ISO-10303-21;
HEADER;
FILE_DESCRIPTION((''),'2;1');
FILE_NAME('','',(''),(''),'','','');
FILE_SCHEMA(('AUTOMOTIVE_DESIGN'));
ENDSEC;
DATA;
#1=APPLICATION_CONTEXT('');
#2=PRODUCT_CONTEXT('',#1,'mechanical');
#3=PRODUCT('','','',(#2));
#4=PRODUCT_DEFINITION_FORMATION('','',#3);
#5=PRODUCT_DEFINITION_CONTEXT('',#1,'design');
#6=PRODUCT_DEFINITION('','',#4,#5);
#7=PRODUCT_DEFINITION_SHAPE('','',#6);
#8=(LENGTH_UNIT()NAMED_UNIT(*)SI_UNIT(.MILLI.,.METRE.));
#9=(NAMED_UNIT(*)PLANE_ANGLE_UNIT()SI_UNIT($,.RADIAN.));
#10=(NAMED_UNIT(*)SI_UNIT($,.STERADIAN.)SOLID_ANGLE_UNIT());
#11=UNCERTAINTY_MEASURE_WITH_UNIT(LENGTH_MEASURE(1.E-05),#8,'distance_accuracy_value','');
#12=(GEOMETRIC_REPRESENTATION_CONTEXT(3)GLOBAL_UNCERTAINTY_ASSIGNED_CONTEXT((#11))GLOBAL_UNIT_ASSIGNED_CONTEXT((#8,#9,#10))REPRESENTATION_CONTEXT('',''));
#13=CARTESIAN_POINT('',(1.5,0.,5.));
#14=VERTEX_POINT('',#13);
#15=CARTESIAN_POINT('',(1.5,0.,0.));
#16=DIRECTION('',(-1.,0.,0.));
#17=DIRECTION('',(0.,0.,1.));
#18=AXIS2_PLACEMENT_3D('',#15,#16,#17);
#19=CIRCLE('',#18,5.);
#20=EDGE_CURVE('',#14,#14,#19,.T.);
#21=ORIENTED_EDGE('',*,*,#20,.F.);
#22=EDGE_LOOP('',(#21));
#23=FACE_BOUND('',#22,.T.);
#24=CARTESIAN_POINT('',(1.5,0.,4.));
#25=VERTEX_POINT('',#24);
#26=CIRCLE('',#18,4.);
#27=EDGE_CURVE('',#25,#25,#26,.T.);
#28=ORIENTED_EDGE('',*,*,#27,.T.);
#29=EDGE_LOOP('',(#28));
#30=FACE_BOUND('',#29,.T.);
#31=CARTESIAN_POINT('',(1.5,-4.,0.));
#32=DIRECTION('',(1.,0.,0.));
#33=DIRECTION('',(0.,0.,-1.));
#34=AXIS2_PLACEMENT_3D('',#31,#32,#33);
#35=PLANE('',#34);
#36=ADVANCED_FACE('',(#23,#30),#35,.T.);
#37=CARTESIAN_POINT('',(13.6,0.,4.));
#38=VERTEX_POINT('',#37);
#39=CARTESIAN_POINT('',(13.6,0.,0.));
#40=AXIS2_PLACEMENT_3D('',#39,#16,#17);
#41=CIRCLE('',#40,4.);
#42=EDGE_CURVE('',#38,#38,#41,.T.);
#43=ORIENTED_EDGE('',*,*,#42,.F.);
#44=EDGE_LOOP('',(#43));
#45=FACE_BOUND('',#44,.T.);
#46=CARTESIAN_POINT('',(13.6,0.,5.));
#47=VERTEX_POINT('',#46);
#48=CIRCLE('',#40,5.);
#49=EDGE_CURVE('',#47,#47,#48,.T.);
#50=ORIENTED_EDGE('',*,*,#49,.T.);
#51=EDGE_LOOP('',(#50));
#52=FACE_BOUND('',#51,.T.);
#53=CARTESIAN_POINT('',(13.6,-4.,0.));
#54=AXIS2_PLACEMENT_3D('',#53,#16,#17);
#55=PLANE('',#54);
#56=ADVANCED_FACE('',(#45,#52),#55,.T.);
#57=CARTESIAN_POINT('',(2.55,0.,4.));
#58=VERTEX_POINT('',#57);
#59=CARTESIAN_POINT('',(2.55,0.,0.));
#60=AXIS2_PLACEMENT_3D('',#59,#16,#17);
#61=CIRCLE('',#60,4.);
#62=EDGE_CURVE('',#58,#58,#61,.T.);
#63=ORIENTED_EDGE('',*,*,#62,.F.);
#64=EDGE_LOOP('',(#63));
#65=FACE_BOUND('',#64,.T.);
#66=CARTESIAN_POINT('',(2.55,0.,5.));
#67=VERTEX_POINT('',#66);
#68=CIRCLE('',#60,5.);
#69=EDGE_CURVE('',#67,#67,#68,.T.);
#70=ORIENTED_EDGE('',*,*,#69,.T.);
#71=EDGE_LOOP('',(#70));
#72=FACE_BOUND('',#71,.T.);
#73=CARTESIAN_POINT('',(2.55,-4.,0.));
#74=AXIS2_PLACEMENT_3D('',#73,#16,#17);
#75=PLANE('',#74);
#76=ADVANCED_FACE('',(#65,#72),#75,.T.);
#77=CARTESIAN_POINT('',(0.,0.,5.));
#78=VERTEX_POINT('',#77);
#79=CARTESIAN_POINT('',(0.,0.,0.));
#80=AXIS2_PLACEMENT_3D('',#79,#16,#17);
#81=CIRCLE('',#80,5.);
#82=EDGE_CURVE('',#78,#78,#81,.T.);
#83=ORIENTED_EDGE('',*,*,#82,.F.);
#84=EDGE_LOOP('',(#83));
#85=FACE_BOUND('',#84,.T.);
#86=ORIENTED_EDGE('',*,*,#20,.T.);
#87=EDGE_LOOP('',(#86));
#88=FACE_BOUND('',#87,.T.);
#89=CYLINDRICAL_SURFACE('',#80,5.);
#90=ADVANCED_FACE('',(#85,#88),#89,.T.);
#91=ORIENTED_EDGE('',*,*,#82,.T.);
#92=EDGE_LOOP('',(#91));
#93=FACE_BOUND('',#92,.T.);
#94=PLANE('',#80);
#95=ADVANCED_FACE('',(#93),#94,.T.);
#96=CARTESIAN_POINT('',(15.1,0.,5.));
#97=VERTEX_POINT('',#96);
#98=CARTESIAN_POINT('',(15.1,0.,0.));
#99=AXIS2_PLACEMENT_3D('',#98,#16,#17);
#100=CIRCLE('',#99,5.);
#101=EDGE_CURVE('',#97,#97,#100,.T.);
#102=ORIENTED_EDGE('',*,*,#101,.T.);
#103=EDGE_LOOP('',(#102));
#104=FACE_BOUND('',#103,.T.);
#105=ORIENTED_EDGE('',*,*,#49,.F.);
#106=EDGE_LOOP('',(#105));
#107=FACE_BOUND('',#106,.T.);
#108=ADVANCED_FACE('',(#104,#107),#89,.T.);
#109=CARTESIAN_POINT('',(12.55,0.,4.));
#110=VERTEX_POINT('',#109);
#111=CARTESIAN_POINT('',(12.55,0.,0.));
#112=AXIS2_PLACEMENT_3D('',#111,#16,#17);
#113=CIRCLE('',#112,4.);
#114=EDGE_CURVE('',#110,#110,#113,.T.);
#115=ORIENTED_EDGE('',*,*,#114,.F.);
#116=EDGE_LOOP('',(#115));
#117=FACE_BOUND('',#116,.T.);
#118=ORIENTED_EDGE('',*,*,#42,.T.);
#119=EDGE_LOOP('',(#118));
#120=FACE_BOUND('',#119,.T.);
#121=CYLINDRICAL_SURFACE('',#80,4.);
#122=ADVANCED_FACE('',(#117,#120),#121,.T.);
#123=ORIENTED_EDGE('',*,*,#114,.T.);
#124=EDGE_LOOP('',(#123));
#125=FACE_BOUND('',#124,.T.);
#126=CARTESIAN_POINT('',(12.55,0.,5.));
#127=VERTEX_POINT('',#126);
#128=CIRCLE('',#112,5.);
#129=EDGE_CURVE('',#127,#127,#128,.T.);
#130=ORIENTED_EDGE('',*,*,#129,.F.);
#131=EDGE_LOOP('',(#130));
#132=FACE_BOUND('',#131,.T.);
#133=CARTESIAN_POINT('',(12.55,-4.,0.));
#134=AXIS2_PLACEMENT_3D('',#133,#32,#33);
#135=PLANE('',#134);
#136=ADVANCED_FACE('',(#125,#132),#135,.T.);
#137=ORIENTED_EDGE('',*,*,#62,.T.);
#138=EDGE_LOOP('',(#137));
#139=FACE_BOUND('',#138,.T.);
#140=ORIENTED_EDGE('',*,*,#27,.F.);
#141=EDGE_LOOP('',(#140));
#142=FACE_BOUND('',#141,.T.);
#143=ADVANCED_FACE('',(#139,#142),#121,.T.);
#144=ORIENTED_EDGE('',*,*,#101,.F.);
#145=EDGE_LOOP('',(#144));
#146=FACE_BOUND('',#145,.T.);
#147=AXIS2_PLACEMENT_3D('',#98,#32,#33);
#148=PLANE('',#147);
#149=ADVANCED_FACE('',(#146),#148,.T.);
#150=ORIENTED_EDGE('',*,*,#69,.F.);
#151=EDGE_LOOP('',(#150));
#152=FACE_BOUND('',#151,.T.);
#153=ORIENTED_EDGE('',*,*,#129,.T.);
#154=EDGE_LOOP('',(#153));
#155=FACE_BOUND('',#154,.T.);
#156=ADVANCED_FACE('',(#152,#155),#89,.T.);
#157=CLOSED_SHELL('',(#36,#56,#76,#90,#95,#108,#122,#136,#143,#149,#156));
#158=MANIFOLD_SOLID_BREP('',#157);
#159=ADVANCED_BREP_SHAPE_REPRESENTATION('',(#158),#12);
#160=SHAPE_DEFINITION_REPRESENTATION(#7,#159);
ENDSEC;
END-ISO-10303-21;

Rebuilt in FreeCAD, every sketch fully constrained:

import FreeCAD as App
import Part
import Sketcher

doc = App.newDocument("Part")
body = doc.addObject("PartDesign::Body", "Body")

# Sketch on XY plane
sketch1 = body.newObject("Sketcher::SketchObject", "Sketch")
sketch1.AttachmentSupport = (doc.getObject("XY_Plane"), [""])
sketch1.MapMode = "FlatFace"
sketch1.addGeometry([
    Part.LineSegment(App.Vector(0, -5, 0), App.Vector(1.5, -5, 0)),  # 0
    Part.LineSegment(App.Vector(1.5, -5, 0), App.Vector(1.5, -4, 0)),  # 1
    Part.LineSegment(App.Vector(1.5, -4, 0), App.Vector(2.5, -4, 0)),  # 2
    Part.LineSegment(App.Vector(2.5, -4, 0), App.Vector(2.5, -5, 0)),  # 3
    Part.LineSegment(App.Vector(2.5, -5, 0), App.Vector(12.6, -5, 0)),  # 4
    Part.LineSegment(App.Vector(12.6, -5, 0), App.Vector(12.6, -4, 0)),  # 5
    Part.LineSegment(App.Vector(12.6, -4, 0), App.Vector(13.6, -4, 0)),  # 6
    Part.LineSegment(App.Vector(13.6, -4, 0), App.Vector(13.6, -5, 0)),  # 7
    Part.LineSegment(App.Vector(13.6, -5, 0), App.Vector(15.1, -5, 0)),  # 8
    Part.LineSegment(App.Vector(15.1, -5, 0), App.Vector(15.1, 0, 0)),  # 9
    Part.LineSegment(App.Vector(15.1, 0, 0), App.Vector(0, 0, 0)),  # 10
    Part.LineSegment(App.Vector(0, 0, 0), App.Vector(0, -5, 0)),  # 11
], False)
sketch1.addConstraint([
    Sketcher.Constraint("Coincident", 0, 2, 1, 1),
    Sketcher.Constraint("Coincident", 1, 2, 2, 1),
    Sketcher.Constraint("Coincident", 2, 2, 3, 1),
    Sketcher.Constraint("Coincident", 3, 2, 4, 1),
    Sketcher.Constraint("Coincident", 4, 2, 5, 1),
    Sketcher.Constraint("Coincident", 5, 2, 6, 1),
    Sketcher.Constraint("Coincident", 6, 2, 7, 1),
    Sketcher.Constraint("Coincident", 7, 2, 8, 1),
    Sketcher.Constraint("Coincident", 8, 2, 9, 1),
    Sketcher.Constraint("Coincident", 9, 2, 10, 1),
    Sketcher.Constraint("Coincident", 10, 2, 11, 1),
    Sketcher.Constraint("Coincident", 11, 2, 0, 1),
    Sketcher.Constraint("Horizontal", 0),
    Sketcher.Constraint("Vertical", 1),
    Sketcher.Constraint("Horizontal", 2),
    Sketcher.Constraint("Vertical", 3),
    Sketcher.Constraint("Horizontal", 4),
    Sketcher.Constraint("Vertical", 5),
    Sketcher.Constraint("Horizontal", 6),
    Sketcher.Constraint("Vertical", 7),
    Sketcher.Constraint("Horizontal", 8),
    Sketcher.Constraint("Vertical", 9),
    Sketcher.Constraint("Horizontal", 10),
    Sketcher.Constraint("Vertical", 11),
    Sketcher.Constraint("Coincident", 10, 2, -1, 1),
    Sketcher.Constraint("Horizontal", 0, 2, 3, 2),
    Sketcher.Constraint("Horizontal", 2, 2, 5, 2),
    Sketcher.Constraint("Horizontal", 4, 2, 7, 2),
    Sketcher.Constraint("Equal", 2, 6),
    Sketcher.Constraint("Equal", 0, 8),
    Sketcher.Constraint("DistanceX", 4, 1, 4, 2, 10.0),
    Sketcher.Constraint("DistanceY", 1, 1, 1, 2, 1.0),
    Sketcher.Constraint("DistanceY", 9, 1, 9, 2, 5.0),
    Sketcher.Constraint("DistanceX", 0, 1, 0, 2, 1.5),
    Sketcher.Constraint("DistanceX", 10, 2, 10, 1, 15.1),
])
revolution = body.newObject("PartDesign::Revolution", "Revolution")
revolution.Profile = sketch1
revolution.ReferenceAxis = (sketch1, ["H_Axis"])
revolution.Angle = 360

doc.recompute()
